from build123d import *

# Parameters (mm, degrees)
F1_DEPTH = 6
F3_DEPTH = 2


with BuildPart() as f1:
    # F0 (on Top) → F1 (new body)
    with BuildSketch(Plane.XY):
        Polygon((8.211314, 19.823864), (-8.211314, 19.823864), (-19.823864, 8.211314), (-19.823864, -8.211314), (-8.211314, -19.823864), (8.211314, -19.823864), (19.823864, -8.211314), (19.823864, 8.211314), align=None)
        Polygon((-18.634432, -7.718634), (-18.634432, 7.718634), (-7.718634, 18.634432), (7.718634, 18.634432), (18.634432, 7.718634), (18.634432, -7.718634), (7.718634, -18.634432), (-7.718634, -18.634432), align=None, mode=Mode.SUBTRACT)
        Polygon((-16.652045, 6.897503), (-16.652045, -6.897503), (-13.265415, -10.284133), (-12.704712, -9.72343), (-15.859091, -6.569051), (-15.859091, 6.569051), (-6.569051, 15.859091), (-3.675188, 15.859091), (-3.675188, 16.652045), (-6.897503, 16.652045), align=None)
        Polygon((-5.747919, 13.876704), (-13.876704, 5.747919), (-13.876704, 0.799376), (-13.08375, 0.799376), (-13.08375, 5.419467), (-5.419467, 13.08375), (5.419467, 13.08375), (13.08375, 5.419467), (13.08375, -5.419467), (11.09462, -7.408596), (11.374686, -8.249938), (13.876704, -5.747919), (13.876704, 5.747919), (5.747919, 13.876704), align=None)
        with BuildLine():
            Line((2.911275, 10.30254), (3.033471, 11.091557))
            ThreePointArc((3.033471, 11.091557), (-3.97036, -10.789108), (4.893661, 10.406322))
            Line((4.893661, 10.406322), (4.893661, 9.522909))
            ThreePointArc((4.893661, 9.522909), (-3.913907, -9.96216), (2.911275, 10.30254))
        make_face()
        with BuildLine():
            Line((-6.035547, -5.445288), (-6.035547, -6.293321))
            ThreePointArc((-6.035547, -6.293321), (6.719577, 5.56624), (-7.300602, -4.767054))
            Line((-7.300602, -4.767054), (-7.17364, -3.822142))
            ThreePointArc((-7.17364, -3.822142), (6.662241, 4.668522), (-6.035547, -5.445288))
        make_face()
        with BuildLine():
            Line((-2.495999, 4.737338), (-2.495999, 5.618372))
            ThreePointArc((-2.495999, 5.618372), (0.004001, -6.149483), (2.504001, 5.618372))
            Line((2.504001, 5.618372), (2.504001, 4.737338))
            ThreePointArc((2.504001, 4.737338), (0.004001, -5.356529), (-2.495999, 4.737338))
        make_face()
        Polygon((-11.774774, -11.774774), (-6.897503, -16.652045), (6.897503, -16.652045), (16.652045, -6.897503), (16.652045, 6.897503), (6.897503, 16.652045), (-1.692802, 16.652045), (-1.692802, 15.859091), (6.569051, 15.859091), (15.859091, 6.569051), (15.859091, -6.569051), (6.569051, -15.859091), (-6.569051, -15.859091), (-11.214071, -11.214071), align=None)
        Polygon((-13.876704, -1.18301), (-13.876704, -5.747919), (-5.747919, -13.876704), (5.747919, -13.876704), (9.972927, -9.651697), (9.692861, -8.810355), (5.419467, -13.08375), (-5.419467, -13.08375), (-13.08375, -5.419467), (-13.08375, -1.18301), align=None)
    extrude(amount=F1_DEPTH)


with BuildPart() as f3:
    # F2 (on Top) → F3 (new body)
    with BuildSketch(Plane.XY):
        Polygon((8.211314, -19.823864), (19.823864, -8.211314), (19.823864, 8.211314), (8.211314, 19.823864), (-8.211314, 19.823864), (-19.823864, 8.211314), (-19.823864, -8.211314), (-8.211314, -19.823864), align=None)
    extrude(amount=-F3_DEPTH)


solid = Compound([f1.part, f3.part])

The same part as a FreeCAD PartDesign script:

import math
import FreeCAD as App
import Part
import Sketcher

doc = App.newDocument("Part")
body = doc.addObject("PartDesign::Body", "Body")
body.AllowCompound = True

# Sketch on XY plane
sketch1 = doc.addObject("Sketcher::SketchObject", "Sketch")
body.addObject(sketch1)
sketch1.AttachmentSupport = (doc.XY_Plane, [""])
sketch1.MapMode = "FlatFace"
sketch1.addGeometry([
    Part.LineSegment(App.Vector(8.2, 19.8, 0), App.Vector(-8.2, 19.8, 0)),  # 0
    Part.LineSegment(App.Vector(-8.2, 19.8, 0), App.Vector(-19.8, 8.2, 0)),  # 1
    Part.LineSegment(App.Vector(-19.8, 8.2, 0), App.Vector(-19.8, -8.2, 0)),  # 2
    Part.LineSegment(App.Vector(-19.8, -8.2, 0), App.Vector(-8.2, -19.8, 0)),  # 3
    Part.LineSegment(App.Vector(-8.2, -19.8, 0), App.Vector(8.2, -19.8, 0)),  # 4
    Part.LineSegment(App.Vector(8.2, -19.8, 0), App.Vector(19.8, -8.2, 0)),  # 5
    Part.LineSegment(App.Vector(19.8, -8.2, 0), App.Vector(19.8, 8.2, 0)),  # 6
    Part.LineSegment(App.Vector(19.8, 8.2, 0), App.Vector(8.2, 19.8, 0)),  # 7
    Part.LineSegment(App.Vector(-7.7, -18.6, 0), App.Vector(-18.6, -7.7, 0)),  # 8
    Part.LineSegment(App.Vector(-18.6, -7.7, 0), App.Vector(-18.6, 7.7, 0)),  # 9
    Part.LineSegment(App.Vector(-18.6, 7.7, 0), App.Vector(-7.7, 18.6, 0)),  # 10
    Part.LineSegment(App.Vector(-7.7, 18.6, 0), App.Vector(7.7, 18.6, 0)),  # 11
    Part.LineSegment(App.Vector(7.7, 18.6, 0), App.Vector(18.6, 7.7, 0)),  # 12
    Part.LineSegment(App.Vector(18.6, 7.7, 0), App.Vector(18.6, -7.7, 0)),  # 13
    Part.LineSegment(App.Vector(18.6, -7.7, 0), App.Vector(7.7, -18.6, 0)),  # 14
    Part.LineSegment(App.Vector(7.7, -18.6, 0), App.Vector(-7.7, -18.6, 0)),  # 15
    Part.LineSegment(App.Vector(-16.7, 6.9, 0), App.Vector(-16.7, -6.9, 0)),  # 16
    Part.LineSegment(App.Vector(-16.7, -6.9, 0), App.Vector(-13.3, -10.3, 0)),  # 17
    Part.LineSegment(App.Vector(-13.3, -10.3, 0), App.Vector(-12.7, -9.7, 0)),  # 18
    Part.LineSegment(App.Vector(-12.7, -9.7, 0), App.Vector(-15.9, -6.6, 0)),  # 19
    Part.LineSegment(App.Vector(-15.9, -6.6, 0), App.Vector(-15.9, 6.6, 0)),  # 20
    Part.LineSegment(App.Vector(-15.9, 6.6, 0), App.Vector(-6.6, 15.9, 0)),  # 21
    Part.LineSegment(App.Vector(-6.6, 15.9, 0), App.Vector(-3.7, 15.9, 0)),  # 22
    Part.LineSegment(App.Vector(-3.7, 15.9, 0), App.Vector(-3.7, 16.7, 0)),  # 23
    Part.LineSegment(App.Vector(-3.7, 16.7, 0), App.Vector(-6.9, 16.7, 0)),  # 24
    Part.LineSegment(App.Vector(-6.9, 16.7, 0), App.Vector(-16.7, 6.9, 0)),  # 25
    Part.LineSegment(App.Vector(-5.7, 13.9, 0), App.Vector(-13.9, 5.7, 0)),  # 26
    Part.LineSegment(App.Vector(-13.9, 5.7, 0), App.Vector(-13.9, 0.8, 0)),  # 27
    Part.LineSegment(App.Vector(-13.9, 0.8, 0), App.Vector(-13.1, 0.8, 0)),  # 28
    Part.LineSegment(App.Vector(-13.1, 0.8, 0), App.Vector(-13.1, 5.4, 0)),  # 29
    Part.LineSegment(App.Vector(-13.1, 5.4, 0), App.Vector(-5.4, 13.1, 0)),  # 30
    Part.LineSegment(App.Vector(-5.4, 13.1, 0), App.Vector(5.4, 13.1, 0)),  # 31
    Part.LineSegment(App.Vector(5.4, 13.1, 0), App.Vector(13.1, 5.4, 0)),  # 32
    Part.LineSegment(App.Vector(13.1, 5.4, 0), App.Vector(13.1, -5.4, 0)),  # 33
    Part.LineSegment(App.Vector(13.1, -5.4, 0), App.Vector(11.1, -7.4, 0)),  # 34
    Part.LineSegment(App.Vector(11.1, -7.4, 0), App.Vector(11.4, -8.2, 0)),  # 35
    Part.LineSegment(App.Vector(11.4, -8.2, 0), App.Vector(13.9, -5.7, 0)),  # 36
    Part.LineSegment(App.Vector(13.9, -5.7, 0), App.Vector(13.9, 5.7, 0)),  # 37
    Part.LineSegment(App.Vector(13.9, 5.7, 0), App.Vector(5.7, 13.9, 0)),  # 38
    Part.LineSegment(App.Vector(5.7, 13.9, 0), App.Vector(-5.7, 13.9, 0)),  # 39
    Part.LineSegment(App.Vector(2.9, 10.3, 0), App.Vector(3, 11.1, 0)),  # 40
    Part.ArcOfCircle(Part.Circle(App.Vector(0, 0, 0), App.Vector(0, 0, 1), 11.5), math.radians(75), math.radians(425)),  # 41
    Part.LineSegment(App.Vector(4.9, 10.4, 0), App.Vector(4.9, 9.5, 0)),  # 42
    Part.ArcOfCircle(Part.Circle(App.Vector(0, 0, 0), App.Vector(0, 0, 1), 10.7), math.radians(74), math.radians(423)),  # 43
    Part.LineSegment(App.Vector(-6, -5.4, 0), App.Vector(-6, -6.3, 0)),  # 44
    Part.ArcOfCircle(Part.Circle(App.Vector(0, 0, 0), App.Vector(0, 0, 1), 8.7), math.radians(-134), math.radians(213)),  # 45
    Part.LineSegment(App.Vector(-7.3, -4.8, 0), App.Vector(-7.2, -3.8, 0)),  # 46
    Part.ArcOfCircle(Part.Circle(App.Vector(0, 0, 0), App.Vector(0, 0, 1), 8.1), math.radians(-138), math.radians(208)),  # 47
    Part.LineSegment(App.Vector(-2.5, 4.7, 0), App.Vector(-2.5, 5.6, 0)),  # 48
    Part.ArcOfCircle(Part.Circle(App.Vector(0, 0, 0), App.Vector(0, 0, 1), 6.1), math.radians(114), math.radians(426)),  # 49
    Part.LineSegment(App.Vector(2.5, 5.6, 0), App.Vector(2.5, 4.7, 0)),  # 50
    Part.ArcOfCircle(Part.Circle(App.Vector(0, 0, 0), App.Vector(0, 0, 1), 5.4), math.radians(118), math.radians(422)),  # 51
    Part.LineSegment(App.Vector(-11.8, -11.8, 0), App.Vector(-6.9, -16.7, 0)),  # 52
    Part.LineSegment(App.Vector(-6.9, -16.7, 0), App.Vector(6.9, -16.7, 0)),  # 53
    Part.LineSegment(App.Vector(6.9, -16.7, 0), App.Vector(16.7, -6.9, 0)),  # 54
    Part.LineSegment(App.Vector(16.7, -6.9, 0), App.Vector(16.7, 6.9, 0)),  # 55
    Part.LineSegment(App.Vector(16.7, 6.9, 0), App.Vector(6.9, 16.7, 0)),  # 56
    Part.LineSegment(App.Vector(6.9, 16.7, 0), App.Vector(-1.7, 16.7, 0)),  # 57
    Part.LineSegment(App.Vector(-1.7, 16.7, 0), App.Vector(-1.7, 15.9, 0)),  # 58
    Part.LineSegment(App.Vector(-1.7, 15.9, 0), App.Vector(6.6, 15.9, 0)),  # 59
    Part.LineSegment(App.Vector(6.6, 15.9, 0), App.Vector(15.9, 6.6, 0)),  # 60
    Part.LineSegment(App.Vector(15.9, 6.6, 0), App.Vector(15.9, -6.6, 0)),  # 61
    Part.LineSegment(App.Vector(15.9, -6.6, 0), App.Vector(6.6, -15.9, 0)),  # 62
    Part.LineSegment(App.Vector(6.6, -15.9, 0), App.Vector(-6.6, -15.9, 0)),  # 63
    Part.LineSegment(App.Vector(-6.6, -15.9, 0), App.Vector(-11.2, -11.2, 0)),  # 64
    Part.LineSegment(App.Vector(-11.2, -11.2, 0), App.Vector(-11.8, -11.8, 0)),  # 65
    Part.LineSegment(App.Vector(-13.9, -1.2, 0), App.Vector(-13.9, -5.7, 0)),  # 66
    Part.LineSegment(App.Vector(-13.9, -5.7, 0), App.Vector(-5.7, -13.9, 0)),  # 67
    Part.LineSegment(App.Vector(-5.7, -13.9, 0), App.Vector(5.7, -13.9, 0)),  # 68
    Part.LineSegment(App.Vector(5.7, -13.9, 0), App.Vector(10, -9.7, 0)),  # 69
    Part.LineSegment(App.Vector(10, -9.7, 0), App.Vector(9.7, -8.8, 0)),  # 70
    Part.LineSegment(App.Vector(9.7, -8.8, 0), App.Vector(5.4, -13.1, 0)),  # 71
    Part.LineSegment(App.Vector(5.4, -13.1, 0), App.Vector(-5.4, -13.1, 0)),  # 72
    Part.LineSegment(App.Vector(-5.4, -13.1, 0), App.Vector(-13.1, -5.4, 0)),  # 73
    Part.LineSegment(App.Vector(-13.1, -5.4, 0), App.Vector(-13.1, -1.2, 0)),  # 74
    Part.LineSegment(App.Vector(-13.1, -1.2, 0), App.Vector(-13.9, -1.2, 0)),  # 75
], False)
sketch1.addConstraint([
    Sketcher.Constraint("Coincident", 0, 2, 1, 1),
    Sketcher.Constraint("Coincident", 1, 2, 2, 1),
    Sketcher.Constraint("Coincident", 2, 2, 3, 1),
    Sketcher.Constraint("Coincident", 3, 2, 4, 1),
    Sketcher.Constraint("Coincident", 4, 2, 5, 1),
    Sketcher.Constraint("Coincident", 5, 2, 6, 1),
    Sketcher.Constraint("Coincident", 6, 2, 7, 1),
    Sketcher.Constraint("Coincident", 7, 2, 0, 1),
    Sketcher.Constraint("Coincident", 8, 2, 9, 1),
    Sketcher.Constraint("Coincident", 9, 2, 10, 1),
    Sketcher.Constraint("Coincident", 10, 2, 11, 1),
    Sketcher.Constraint("Coincident", 11, 2, 12, 1),
    Sketcher.Constraint("Coincident", 12, 2, 13, 1),
    Sketcher.Constraint("Coincident", 13, 2, 14, 1),
    Sketcher.Constraint("Coincident", 14, 2, 15, 1),
    Sketcher.Constraint("Coincident", 15, 2, 8, 1),
    Sketcher.Constraint("Coincident", 16, 2, 17, 1),
    Sketcher.Constraint("Coincident", 17, 2, 18, 1),
    Sketcher.Constraint("Coincident", 18, 2, 19, 1),
    Sketcher.Constraint("Coincident", 19, 2, 20, 1),
    Sketcher.Constraint("Coincident", 20, 2, 21, 1),
    Sketcher.Constraint("Coincident", 21, 2, 22, 1),
    Sketcher.Constraint("Coincident", 22, 2, 23, 1),
    Sketcher.Constraint("Coincident", 23, 2, 24, 1),
    Sketcher.Constraint("Coincident", 24, 2, 25, 1),
    Sketcher.Constraint("Coincident", 25, 2, 16, 1),
    Sketcher.Constraint("Coincident", 26, 2, 27, 1),
    Sketcher.Constraint("Coincident", 27, 2, 28, 1),
    Sketcher.Constraint("Coincident", 28, 2, 29, 1),
    Sketcher.Constraint("Coincident", 29, 2, 30, 1),
    Sketcher.Constraint("Coincident", 30, 2, 31, 1),
    Sketcher.Constraint("Coincident", 31, 2, 32, 1),
    Sketcher.Constraint("Coincident", 32, 2, 33, 1),
    Sketcher.Constraint("Coincident", 33, 2, 34, 1),
    Sketcher.Constraint("Coincident", 34, 2, 35, 1),
    Sketcher.Constraint("Coincident", 35, 2, 36, 1),
    Sketcher.Constraint("Coincident", 36, 2, 37, 1),
    Sketcher.Constraint("Coincident", 37, 2, 38, 1),
    Sketcher.Constraint("Coincident", 38, 2, 39, 1),
    Sketcher.Constraint("Coincident", 39, 2, 26, 1),
    Sketcher.Constraint("Coincident", 40, 2, 41, 1),
    Sketcher.Constraint("Coincident", 41, 2, 42, 1),
    Sketcher.Constraint("Coincident", 42, 2, 43, 2),
    Sketcher.Constraint("Coincident", 43, 1, 40, 1),
    Sketcher.Constraint("Coincident", 44, 2, 45, 1),
    Sketcher.Constraint("Coincident", 45, 2, 46, 1),
    Sketcher.Constraint("Coincident", 46, 2, 47, 2),
    Sketcher.Constraint("Coincident", 47, 1, 44, 1),
    Sketcher.Constraint("Coincident", 48, 2, 49, 1),
    Sketcher.Constraint("Coincident", 49, 2, 50, 1),
    Sketcher.Constraint("Coincident", 50, 2, 51, 2),
    Sketcher.Constraint("Coincident", 51, 1, 48, 1),
    Sketcher.Constraint("Coincident", 52, 2, 53, 1),
    Sketcher.Constraint("Coincident", 53, 2, 54, 1),
    Sketcher.Constraint("Coincident", 54, 2, 55, 1),
    Sketcher.Constraint("Coincident", 55, 2, 56, 1),
    Sketcher.Constraint("Coincident", 56, 2, 57, 1),
    Sketcher.Constraint("Coincident", 57, 2, 58, 1),
    Sketcher.Constraint("Coincident", 58, 2, 59, 1),
    Sketcher.Constraint("Coincident", 59, 2, 60, 1),
    Sketcher.Constraint("Coincident", 60, 2, 61, 1),
    Sketcher.Constraint("Coincident", 61, 2, 62, 1),
    Sketcher.Constraint("Coincident", 62, 2, 63, 1),
    Sketcher.Constraint("Coincident", 63, 2, 64, 1),
    Sketcher.Constraint("Coincident", 64, 2, 65, 1),
    Sketcher.Constraint("Coincident", 65, 2, 52, 1),
    Sketcher.Constraint("Coincident", 66, 2, 67, 1),
    Sketcher.Constraint("Coincident", 67, 2, 68, 1),
    Sketcher.Constraint("Coincident", 68, 2, 69, 1),
    Sketcher.Constraint("Coincident", 69, 2, 70, 1),
    Sketcher.Constraint("Coincident", 70, 2, 71, 1),
    Sketcher.Constraint("Coincident", 71, 2, 72, 1),
    Sketcher.Constraint("Coincident", 72, 2, 73, 1),
    Sketcher.Constraint("Coincident", 73, 2, 74, 1),
    Sketcher.Constraint("Coincident", 74, 2, 75, 1),
    Sketcher.Constraint("Coincident", 75, 2, 66, 1),
    Sketcher.Constraint("Horizontal", 0),
    Sketcher.Constraint("Vertical", 2),
    Sketcher.Constraint("Horizontal", 4),
    Sketcher.Constraint("Vertical", 6),
    Sketcher.Constraint("Vertical", 9),
    Sketcher.Constraint("Horizontal", 11),
    Sketcher.Constraint("Vertical", 13),
    Sketcher.Constraint("Horizontal", 15),
    Sketcher.Constraint("Vertical", 16),
    Sketcher.Constraint("Vertical", 20),
    Sketcher.Constraint("Horizontal", 22),
    Sketcher.Constraint("Vertical", 23),
    Sketcher.Constraint("Horizontal", 24),
    Sketcher.Constraint("Vertical", 27),
    Sketcher.Constraint("Horizontal", 28),
    Sketcher.Constraint("Vertical", 29),
    Sketcher.Constraint("Horizontal", 31),
    Sketcher.Constraint("Vertical", 33),
    Sketcher.Constraint("Vertical", 37),
    Sketcher.Constraint("Horizontal", 39),
    Sketcher.Constraint("Vertical", 42),
    Sketcher.Constraint("Vertical", 44),
    Sketcher.Constraint("Vertical", 48),
    Sketcher.Constraint("Vertical", 50),
    Sketcher.Constraint("Horizontal", 53),
    Sketcher.Constraint("Vertical", 55),
    Sketcher.Constraint("Horizontal", 57),
    Sketcher.Constraint("Vertical", 58),
    Sketcher.Constraint("Horizontal", 59),
    Sketcher.Constraint("Vertical", 61),
    Sketcher.Constraint("Horizontal", 63),
    Sketcher.Constraint("Vertical", 66),
    Sketcher.Constraint("Horizontal", 68),
    Sketcher.Constraint("Horizontal", 72),
    Sketcher.Constraint("Vertical", 74),
    Sketcher.Constraint("Horizontal", 75),
    Sketcher.Constraint("Coincident", 43, 3, 41, 3),
    Sketcher.Constraint("Coincident", 45, 3, 41, 3),
    Sketcher.Constraint("Coincident", 47, 3, 41, 3),
    Sketcher.Constraint("Coincident", 49, 3, 41, 3),
    Sketcher.Constraint("Coincident", 51, 3, 41, 3),
    Sketcher.Constraint("Symmetric", 0, 2, 4, 2, -1, 1),
    Sketcher.Constraint("Symmetric", 1, 2, 5, 2, -1, 1),
    Sketcher.Constraint("Symmetric", 8, 2, 12, 2, -1, 1),
    Sketcher.Constraint("Symmetric", 10, 2, 14, 2, -1, 1),
    Sketcher.Constraint("Symmetric", 29, 2, 33, 2, -1, 1),
    Sketcher.Constraint("Symmetric", 26, 2, 36, 2, -1, 1),
    Sketcher.Constraint("Symmetric", 24, 2, 53, 2, -1, 1),
    Sketcher.Constraint("Symmetric", 25, 2, 54, 2, -1, 1),
    Sketcher.Constraint("Symmetric", 52, 2, 56, 2, -1, 1),
    Sketcher.Constraint("Symmetric", 19, 2, 60, 2, -1, 1),
    Sketcher.Constraint("Symmetric", 21, 2, 62, 2, -1, 1),
    Sketcher.Constraint("Symmetric", 59, 2, 63, 2, -1, 1),
    Sketcher.Constraint("Symmetric", 37, 2, 66, 2, -1, 1),
    Sketcher.Constraint("Symmetric", 38, 2, 67, 2, -1, 1),
    Sketcher.Constraint("Symmetric", 30, 2, 71, 2, -1, 1),
    Sketcher.Constraint("Symmetric", 32, 2, 73, 2, -1, 1),
    Sketcher.Constraint("PointOnObject", 41, 3, -1),
    Sketcher.Constraint("Perpendicular", 1, 3),
    Sketcher.Constraint("Perpendicular", 5, 7),
    Sketcher.Constraint("Parallel", 7, 8),
    Sketcher.Constraint("Perpendicular", 8, 10),
    Sketcher.Constraint("Perpendicular", 10, 12),
    Sketcher.Constraint("Perpendicular", 12, 14),
    Sketcher.Constraint("Perpendicular", 14, 17),
    Sketcher.Constraint("Perpendicular", 17, 18),
    Sketcher.Constraint("Perpendicular", 18, 19),
    Sketcher.Constraint("Perpendicular", 19, 21),
    Sketcher.Constraint("Parallel", 21, 25),
    Sketcher.Constraint("Parallel", 25, 26),
    Sketcher.Constraint("Parallel", 26, 30),
    Sketcher.Constraint("Perpendicular", 30, 32),
    Sketcher.Constraint("Perpendicular", 32, 34),
    Sketcher.Constraint("Parallel", 34, 36),
    Sketcher.Constraint("Perpendicular", 36, 38),
    Sketcher.Constraint("Parallel", 38, 52),
    Sketcher.Constraint("Perpendicular", 54, 56),
    Sketcher.Constraint("Parallel", 56, 60),
    Sketcher.Constraint("Perpendicular", 60, 62),
    Sketcher.Constraint("Perpendicular", 62, 64),
    Sketcher.Constraint("Perpendicular", 64, 65),
    Sketcher.Constraint("Perpendicular", 67, 69),
    Sketcher.Constraint("Parallel", 35, 70),
    Sketcher.Constraint("Parallel", 69, 71),
    Sketcher.Constraint("Perpendicular", 71, 73),
    Sketcher.Constraint("Horizontal", 2, 2, 5, 2),
    Sketcher.Constraint("Horizontal", 1, 2, 6, 2),
    Sketcher.Constraint("Horizontal", 9, 2, 12, 2),
    Sketcher.Constraint("Horizontal", 29, 2, 32, 2),
    Sketcher.Constraint("Horizontal", 26, 2, 37, 2),
    Sketcher.Constraint("Horizontal", 48, 2, 49, 2),
    Sketcher.Constraint("Horizontal", 16, 2, 54, 2),
    Sketcher.Constraint("Horizontal", 25, 2, 55, 2),
    Sketcher.Constraint("Horizontal", 20, 2, 60, 2),
    Sketcher.Constraint("Vertical", 0, 2, 3, 2),
    Sketcher.Constraint("Vertical", 38, 2, 68, 2),
    Sketcher.Constraint("Equal", 4, 2),
    Sketcher.Constraint("Equal", 15, 9),
    Sketcher.Constraint("Equal", 53, 16),
    Sketcher.Constraint("Equal", 63, 20),
    Sketcher.Constraint("Equal", 75, 23),
    Sketcher.Constraint("Equal", 72, 33),
    Sketcher.Constraint("Equal", 68, 37),
    Sketcher.Constraint("Radius", 45, 8.7225),
    Sketcher.Constraint("Radius", 41, 11.497841),
    Sketcher.Constraint("Radius", 47, 8.131868),
    Sketcher.Constraint("Radius", 49, 6.149481),
    Sketcher.Constraint("DistanceX", -1, 1, 43, 3, 0.004),
    Sketcher.Constraint("DistanceX", 48, 2, -1, 1, 2.495999),
    Sketcher.Constraint("Radius", 43, 10.704887),
    Sketcher.Constraint("Radius", 51, 5.356527),
    Sketcher.Constraint("Distance", 21, 13.138101),
    Sketcher.Constraint("DistanceY", 29, 1, 29, 2, 4.620091),
    Sketcher.Constraint("DistanceY", 66, 2, 66, 1, 4.564909),
    Sketcher.Constraint("DistanceX", 45, 2, -1, 1, 7.300602),
    Sketcher.Constraint("DistanceX", 57, 2, -1, 1, 1.692802),
    Sketcher.Constraint("Distance", 8, 15.43727),
    Sketcher.Constraint("Distance", 17, 4.789418),
    Sketcher.Constraint("Distance", 35, 0.886732),
    Sketcher.Constraint("Distance", 36, 3.538388),
    Sketcher.Constraint("Distance", 64, 6.56905),
    Sketcher.Constraint("DistanceX", 0, 2, 0, 1, 16.422628),
    Sketcher.Constraint("DistanceX", 11, 1, 11, 2, 15.437268),
    Sketcher.Constraint("DistanceX", 22, 1, 22, 2, 2.893863),
    Sketcher.Constraint("DistanceX", 24, 2, 24, 1, 3.222315),
    Sketcher.Constraint("DistanceX", 28, 1, 28, 2, 0.792954),
    Sketcher.Constraint("DistanceX", 31, 1, 31, 2, 10.838934),
    Sketcher.Constraint("DistanceX", 39, 2, 39, 1, 11.495838),
    Sketcher.Constraint("DistanceX", 53, 1, 53, 2, 13.795006),
    Sketcher.Constraint("DistanceY", 42, 2, 42, 1, 0.883413),
    Sketcher.Constraint("DistanceY", 44, 2, 44, 1, 0.848033),
    Sketcher.Constraint("DistanceX", 28, 2, -1, 1, 13.08375),
    Sketcher.Constraint("DistanceX", -1, 1, 40, 2, 3.033471),
    Sketcher.Constraint("DistanceY", -1, 1, 43, 1, 10.30254),
    Sketcher.Constraint("DistanceX", 46, 2, -1, 1, 7.17364),
    Sketcher.Constraint("DistanceX", -1, 1, 70, 2, 9.692861),
    Sketcher.Constraint("Distance", 1, 16.422626),
])
pad1 = doc.addObject("PartDesign::Pad", "Pad")
body.addObject(pad1)
pad1.Profile = sketch1
pad1.Length = 6
body2 = doc.addObject("PartDesign::Body", "Body001")

# Sketch on XY plane
sketch2 = doc.addObject("Sketcher::SketchObject", "Sketch001")
body2.addObject(sketch2)
sketch2.AttachmentSupport = (doc.getObject("XY_Plane001"), [""])
sketch2.MapMode = "FlatFace"
sketch2.addGeometry([
    Part.LineSegment(App.Vector(8, -20, 0), App.Vector(20, -8, 0)),  # 0
    Part.LineSegment(App.Vector(20, -8, 0), App.Vector(20, 8, 0)),  # 1
    Part.LineSegment(App.Vector(20, 8, 0), App.Vector(8, 20, 0)),  # 2
    Part.LineSegment(App.Vector(8, 20, 0), App.Vector(-8, 20, 0)),  # 3
    Part.LineSegment(App.Vector(-8, 20, 0), App.Vector(-20, 8, 0)),  # 4
    Part.LineSegment(App.Vector(-20, 8, 0), App.Vector(-20, -8, 0)),  # 5
    Part.LineSegment(App.Vector(-20, -8, 0), App.Vector(-8, -20, 0)),  # 6
    Part.LineSegment(App.Vector(-8, -20, 0), App.Vector(8, -20, 0)),  # 7
], False)
sketch2.addConstraint([
    Sketcher.Constraint("Coincident", 0, 2, 1, 1),
    Sketcher.Constraint("Coincident", 1, 2, 2, 1),
    Sketcher.Constraint("Coincident", 2, 2, 3, 1),
    Sketcher.Constraint("Coincident", 3, 2, 4, 1),
    Sketcher.Constraint("Coincident", 4, 2, 5, 1),
    Sketcher.Constraint("Coincident", 5, 2, 6, 1),
    Sketcher.Constraint("Coincident", 6, 2, 7, 1),
    Sketcher.Constraint("Coincident", 7, 2, 0, 1),
    Sketcher.Constraint("Vertical", 1),
    Sketcher.Constraint("Horizontal", 3),
    Sketcher.Constraint("Vertical", 5),
    Sketcher.Constraint("Horizontal", 7),
    Sketcher.Constraint("Symmetric", 0, 2, 4, 2, -1, 1),
    Sketcher.Constraint("Symmetric", 2, 2, 6, 2, -1, 1),
    Sketcher.Constraint("Perpendicular", 0, 2),
    Sketcher.Constraint("Perpendicular", 2, 4),
    Sketcher.Constraint("Perpendicular", 4, 6),
    Sketcher.Constraint("Horizontal", 1, 2, 4, 2),
    Sketcher.Constraint("Vertical", 3, 2, 6, 2),
    Sketcher.Constraint("Equal", 7, 1),
    Sketcher.Constraint("DistanceX", 3, 2, 3, 1, 16.422628),
    Sketcher.Constraint("DistanceX", 2, 2, 1, 2, 11.61255),
])
pad2 = doc.addObject("PartDesign::Pad", "Pad001")
body2.addObject(pad2)
pad2.Profile = sketch2
pad2.Length = 2
pad2.Reversed = True

doc.recompute()
